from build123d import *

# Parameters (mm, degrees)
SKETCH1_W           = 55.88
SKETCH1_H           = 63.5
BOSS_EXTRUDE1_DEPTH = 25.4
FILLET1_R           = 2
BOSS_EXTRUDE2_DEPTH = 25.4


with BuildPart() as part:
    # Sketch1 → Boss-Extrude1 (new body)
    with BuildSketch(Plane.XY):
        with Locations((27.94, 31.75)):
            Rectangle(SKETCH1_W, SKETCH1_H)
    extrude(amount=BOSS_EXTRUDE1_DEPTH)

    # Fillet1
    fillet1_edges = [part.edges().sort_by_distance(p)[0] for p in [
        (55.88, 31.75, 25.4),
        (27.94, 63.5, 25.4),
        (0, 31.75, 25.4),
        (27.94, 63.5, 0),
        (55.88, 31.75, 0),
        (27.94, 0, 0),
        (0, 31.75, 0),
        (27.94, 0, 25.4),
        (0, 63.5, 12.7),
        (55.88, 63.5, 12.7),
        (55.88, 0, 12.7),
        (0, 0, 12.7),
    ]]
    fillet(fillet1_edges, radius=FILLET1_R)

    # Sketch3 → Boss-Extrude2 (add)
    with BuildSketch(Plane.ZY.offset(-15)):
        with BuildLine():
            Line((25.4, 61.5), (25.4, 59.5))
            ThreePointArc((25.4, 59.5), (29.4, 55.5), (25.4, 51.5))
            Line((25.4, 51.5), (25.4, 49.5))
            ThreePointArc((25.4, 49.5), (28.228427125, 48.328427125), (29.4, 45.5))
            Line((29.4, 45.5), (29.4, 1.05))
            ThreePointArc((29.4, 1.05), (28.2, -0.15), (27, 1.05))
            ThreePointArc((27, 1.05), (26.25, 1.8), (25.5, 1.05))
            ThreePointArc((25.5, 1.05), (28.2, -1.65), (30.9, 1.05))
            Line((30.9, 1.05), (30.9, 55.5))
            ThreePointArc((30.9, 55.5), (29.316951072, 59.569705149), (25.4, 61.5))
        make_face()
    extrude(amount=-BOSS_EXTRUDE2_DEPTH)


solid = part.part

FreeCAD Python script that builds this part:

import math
import FreeCAD as App
import Part
import Sketcher

V = App.Vector

doc = App.newDocument("Part")
body = doc.addObject("PartDesign::Body", "Body")

sketch1 = doc.addObject("Sketcher::SketchObject", "Sketch")
body.addObject(sketch1)
sketch1.AttachmentSupport = (doc.XY_Plane, [""])
sketch1.MapMode = "FlatFace"
sketch1.addGeometry(Part.LineSegment(V(0, 64, 0), V(0, 0, 0)), False)
sketch1.addGeometry(Part.LineSegment(V(0, 0, 0), V(56, 0, 0)), False)
sketch1.addGeometry(Part.LineSegment(V(56, 0, 0), V(56, 64, 0)), False)
sketch1.addGeometry(Part.LineSegment(V(56, 64, 0), V(0, 64, 0)), False)
sketch1.addConstraint(Sketcher.Constraint("Coincident", 0, 2, 1, 1))
sketch1.addConstraint(Sketcher.Constraint("Coincident", 1, 2, 2, 1))
sketch1.addConstraint(Sketcher.Constraint("Coincident", 2, 2, 3, 1))
sketch1.addConstraint(Sketcher.Constraint("Coincident", 3, 2, 0, 1))
sketch1.addConstraint(Sketcher.Constraint("Vertical", 0))
sketch1.addConstraint(Sketcher.Constraint("Horizontal", 1))
sketch1.addConstraint(Sketcher.Constraint("Vertical", 2))
sketch1.addConstraint(Sketcher.Constraint("Horizontal", 3))
sketch1.addConstraint(Sketcher.Constraint("Coincident", 0, 2, -1, 1))
sketch1.addConstraint(Sketcher.Constraint("DistanceY", 0, 2, 0, 1, 63.5))
sketch1.addConstraint(Sketcher.Constraint("DistanceX", 1, 1, 1, 2, 55.88))
pad1 = doc.addObject("PartDesign::Pad", "Pad")
body.addObject(pad1)
pad1.Profile = sketch1
pad1.Length = 25.4
doc.recompute()

fillet = doc.addObject("PartDesign::Fillet", "Fillet")
body.addObject(fillet)
fillet.Base = (pad1, ["Edge1"])
fillet.UseAllEdges = True
fillet.Radius = 2

sketch2 = doc.addObject("Sketcher::SketchObject", "Sketch001")
body.addObject(sketch2)
sketch2.AttachmentSupport = (doc.YZ_Plane, [""])
sketch2.MapMode = "FlatFace"
sketch2.AttachmentOffset = App.Placement(V(0, 0, 15), App.Rotation())
sketch2.addGeometry(Part.LineSegment(V(61.5, 25.4, 0), V(59.5, 25.4, 0)), False)
sketch2.addGeometry(Part.ArcOfCircle(Part.Circle(V(55.5, 25.4, 0), V(0, 0, 1), 4), math.radians(0), math.radians(180)), False)
sketch2.addGeometry(Part.LineSegment(V(51.5, 25.4, 0), V(49.5, 25.4, 0)), False)
sketch2.addGeometry(Part.ArcOfCircle(Part.Circle(V(45.5, 25.4, 0), V(0, 0, 1), 4), math.radians(0), math.radians(90)), False)
sketch2.addGeometry(Part.LineSegment(V(45.5, 29.4, 0), V(1.1, 29.4, 0)), False)
sketch2.addGeometry(Part.ArcOfCircle(Part.Circle(V(1.1, 28.2, 0), V(0, 0, 1), 1.2), math.radians(90), math.radians(270)), False)
sketch2.addGeometry(Part.ArcOfCircle(Part.Circle(V(1.1, 26.2, 0), V(0, 0, 1), 0.8), math.radians(-90), math.radians(90)), False)
sketch2.addGeometry(Part.ArcOfCircle(Part.Circle(V(1.1, 28.2, 0), V(0, 0, 1), 2.7), math.radians(90), math.radians(270)), False)
sketch2.addGeometry(Part.LineSegment(V(1.1, 30.9, 0), V(55.5, 30.9, 0)), False)
sketch2.addGeometry(Part.ArcOfCircle(Part.Circle(V(55.5, 24.9, 0), V(0, 0, 1), 6), math.radians(5), math.radians(90)), False)
sketch2.addConstraint(Sketcher.Constraint("Coincident", 0, 2, 1, 1))
sketch2.addConstraint(Sketcher.Constraint("Coincident", 1, 2, 2, 1))
sketch2.addConstraint(Sketcher.Constraint("Coincident", 2, 2, 3, 1))
sketch2.addConstraint(Sketcher.Constraint("Tangent", 3, 2, 4, 1))
sketch2.addConstraint(Sketcher.Constraint("Tangent", 4, 2, 5, 1))
sketch2.addConstraint(Sketcher.Constraint("Tangent", 5, 2, 6, 2))
sketch2.addConstraint(Sketcher.Constraint("Tangent", 6, 1, 7, 2))
sketch2.addConstraint(Sketcher.Constraint("Tangent", 7, 1, 8, 1))
sketch2.addConstraint(Sketcher.Constraint("Tangent", 8, 2, 9, 2))
sketch2.addConstraint(Sketcher.Constraint("Coincident", 9, 1, 0, 1))
sketch2.addConstraint(Sketcher.Constraint("Horizontal", 0))
sketch2.addConstraint(Sketcher.Constraint("Horizontal", 2))
sketch2.addConstraint(Sketcher.Constraint("Horizontal", 4))
sketch2.addConstraint(Sketcher.Constraint("Horizontal", 8))
sketch2.addConstraint(Sketcher.Constraint("Coincident", 7, 3, 5, 3))
sketch2.addConstraint(Sketcher.Constraint("Equal", 1, 3))
sketch2.addConstraint(Sketcher.Constraint("Horizontal", 1, 3, 3, 3))
sketch2.addConstraint(Sketcher.Constraint("Horizontal", 3, 3, 0, 2))
sketch2.addConstraint(Sketcher.Constraint("Horizontal", 0, 2, 1, 2))
sketch2.addConstraint(Sketcher.Constraint("Vertical", 5, 3, 6, 3))
sketch2.addConstraint(Sketcher.Constraint("Vertical", 1, 3, 9, 3))
sketch2.addConstraint(Sketcher.Constraint("Equal", 0, 2))
sketch2.addConstraint(Sketcher.Constraint("Radius", 1, 4.0))
sketch2.addConstraint(Sketcher.Constraint("Radius", 5, 1.2))
sketch2.addConstraint(Sketcher.Constraint("Radius", 7, 2.7))
sketch2.addConstraint(Sketcher.Constraint("DistanceX", 0, 2, 0, 1, 2.0))
sketch2.addConstraint(Sketcher.Constraint("DistanceY", -1, 1, 5, 2, 27.0))
sketch2.addConstraint(Sketcher.Constraint("DistanceX", 4, 2, 4, 1, 44.45))
sketch2.addConstraint(Sketcher.Constraint("DistanceX", -1, 1, 1, 3, 55.5))
pad2 = doc.addObject("PartDesign::Pad", "Pad001")
body.addObject(pad2)
pad2.Profile = sketch2
pad2.Length = 25.4

doc.recompute()
